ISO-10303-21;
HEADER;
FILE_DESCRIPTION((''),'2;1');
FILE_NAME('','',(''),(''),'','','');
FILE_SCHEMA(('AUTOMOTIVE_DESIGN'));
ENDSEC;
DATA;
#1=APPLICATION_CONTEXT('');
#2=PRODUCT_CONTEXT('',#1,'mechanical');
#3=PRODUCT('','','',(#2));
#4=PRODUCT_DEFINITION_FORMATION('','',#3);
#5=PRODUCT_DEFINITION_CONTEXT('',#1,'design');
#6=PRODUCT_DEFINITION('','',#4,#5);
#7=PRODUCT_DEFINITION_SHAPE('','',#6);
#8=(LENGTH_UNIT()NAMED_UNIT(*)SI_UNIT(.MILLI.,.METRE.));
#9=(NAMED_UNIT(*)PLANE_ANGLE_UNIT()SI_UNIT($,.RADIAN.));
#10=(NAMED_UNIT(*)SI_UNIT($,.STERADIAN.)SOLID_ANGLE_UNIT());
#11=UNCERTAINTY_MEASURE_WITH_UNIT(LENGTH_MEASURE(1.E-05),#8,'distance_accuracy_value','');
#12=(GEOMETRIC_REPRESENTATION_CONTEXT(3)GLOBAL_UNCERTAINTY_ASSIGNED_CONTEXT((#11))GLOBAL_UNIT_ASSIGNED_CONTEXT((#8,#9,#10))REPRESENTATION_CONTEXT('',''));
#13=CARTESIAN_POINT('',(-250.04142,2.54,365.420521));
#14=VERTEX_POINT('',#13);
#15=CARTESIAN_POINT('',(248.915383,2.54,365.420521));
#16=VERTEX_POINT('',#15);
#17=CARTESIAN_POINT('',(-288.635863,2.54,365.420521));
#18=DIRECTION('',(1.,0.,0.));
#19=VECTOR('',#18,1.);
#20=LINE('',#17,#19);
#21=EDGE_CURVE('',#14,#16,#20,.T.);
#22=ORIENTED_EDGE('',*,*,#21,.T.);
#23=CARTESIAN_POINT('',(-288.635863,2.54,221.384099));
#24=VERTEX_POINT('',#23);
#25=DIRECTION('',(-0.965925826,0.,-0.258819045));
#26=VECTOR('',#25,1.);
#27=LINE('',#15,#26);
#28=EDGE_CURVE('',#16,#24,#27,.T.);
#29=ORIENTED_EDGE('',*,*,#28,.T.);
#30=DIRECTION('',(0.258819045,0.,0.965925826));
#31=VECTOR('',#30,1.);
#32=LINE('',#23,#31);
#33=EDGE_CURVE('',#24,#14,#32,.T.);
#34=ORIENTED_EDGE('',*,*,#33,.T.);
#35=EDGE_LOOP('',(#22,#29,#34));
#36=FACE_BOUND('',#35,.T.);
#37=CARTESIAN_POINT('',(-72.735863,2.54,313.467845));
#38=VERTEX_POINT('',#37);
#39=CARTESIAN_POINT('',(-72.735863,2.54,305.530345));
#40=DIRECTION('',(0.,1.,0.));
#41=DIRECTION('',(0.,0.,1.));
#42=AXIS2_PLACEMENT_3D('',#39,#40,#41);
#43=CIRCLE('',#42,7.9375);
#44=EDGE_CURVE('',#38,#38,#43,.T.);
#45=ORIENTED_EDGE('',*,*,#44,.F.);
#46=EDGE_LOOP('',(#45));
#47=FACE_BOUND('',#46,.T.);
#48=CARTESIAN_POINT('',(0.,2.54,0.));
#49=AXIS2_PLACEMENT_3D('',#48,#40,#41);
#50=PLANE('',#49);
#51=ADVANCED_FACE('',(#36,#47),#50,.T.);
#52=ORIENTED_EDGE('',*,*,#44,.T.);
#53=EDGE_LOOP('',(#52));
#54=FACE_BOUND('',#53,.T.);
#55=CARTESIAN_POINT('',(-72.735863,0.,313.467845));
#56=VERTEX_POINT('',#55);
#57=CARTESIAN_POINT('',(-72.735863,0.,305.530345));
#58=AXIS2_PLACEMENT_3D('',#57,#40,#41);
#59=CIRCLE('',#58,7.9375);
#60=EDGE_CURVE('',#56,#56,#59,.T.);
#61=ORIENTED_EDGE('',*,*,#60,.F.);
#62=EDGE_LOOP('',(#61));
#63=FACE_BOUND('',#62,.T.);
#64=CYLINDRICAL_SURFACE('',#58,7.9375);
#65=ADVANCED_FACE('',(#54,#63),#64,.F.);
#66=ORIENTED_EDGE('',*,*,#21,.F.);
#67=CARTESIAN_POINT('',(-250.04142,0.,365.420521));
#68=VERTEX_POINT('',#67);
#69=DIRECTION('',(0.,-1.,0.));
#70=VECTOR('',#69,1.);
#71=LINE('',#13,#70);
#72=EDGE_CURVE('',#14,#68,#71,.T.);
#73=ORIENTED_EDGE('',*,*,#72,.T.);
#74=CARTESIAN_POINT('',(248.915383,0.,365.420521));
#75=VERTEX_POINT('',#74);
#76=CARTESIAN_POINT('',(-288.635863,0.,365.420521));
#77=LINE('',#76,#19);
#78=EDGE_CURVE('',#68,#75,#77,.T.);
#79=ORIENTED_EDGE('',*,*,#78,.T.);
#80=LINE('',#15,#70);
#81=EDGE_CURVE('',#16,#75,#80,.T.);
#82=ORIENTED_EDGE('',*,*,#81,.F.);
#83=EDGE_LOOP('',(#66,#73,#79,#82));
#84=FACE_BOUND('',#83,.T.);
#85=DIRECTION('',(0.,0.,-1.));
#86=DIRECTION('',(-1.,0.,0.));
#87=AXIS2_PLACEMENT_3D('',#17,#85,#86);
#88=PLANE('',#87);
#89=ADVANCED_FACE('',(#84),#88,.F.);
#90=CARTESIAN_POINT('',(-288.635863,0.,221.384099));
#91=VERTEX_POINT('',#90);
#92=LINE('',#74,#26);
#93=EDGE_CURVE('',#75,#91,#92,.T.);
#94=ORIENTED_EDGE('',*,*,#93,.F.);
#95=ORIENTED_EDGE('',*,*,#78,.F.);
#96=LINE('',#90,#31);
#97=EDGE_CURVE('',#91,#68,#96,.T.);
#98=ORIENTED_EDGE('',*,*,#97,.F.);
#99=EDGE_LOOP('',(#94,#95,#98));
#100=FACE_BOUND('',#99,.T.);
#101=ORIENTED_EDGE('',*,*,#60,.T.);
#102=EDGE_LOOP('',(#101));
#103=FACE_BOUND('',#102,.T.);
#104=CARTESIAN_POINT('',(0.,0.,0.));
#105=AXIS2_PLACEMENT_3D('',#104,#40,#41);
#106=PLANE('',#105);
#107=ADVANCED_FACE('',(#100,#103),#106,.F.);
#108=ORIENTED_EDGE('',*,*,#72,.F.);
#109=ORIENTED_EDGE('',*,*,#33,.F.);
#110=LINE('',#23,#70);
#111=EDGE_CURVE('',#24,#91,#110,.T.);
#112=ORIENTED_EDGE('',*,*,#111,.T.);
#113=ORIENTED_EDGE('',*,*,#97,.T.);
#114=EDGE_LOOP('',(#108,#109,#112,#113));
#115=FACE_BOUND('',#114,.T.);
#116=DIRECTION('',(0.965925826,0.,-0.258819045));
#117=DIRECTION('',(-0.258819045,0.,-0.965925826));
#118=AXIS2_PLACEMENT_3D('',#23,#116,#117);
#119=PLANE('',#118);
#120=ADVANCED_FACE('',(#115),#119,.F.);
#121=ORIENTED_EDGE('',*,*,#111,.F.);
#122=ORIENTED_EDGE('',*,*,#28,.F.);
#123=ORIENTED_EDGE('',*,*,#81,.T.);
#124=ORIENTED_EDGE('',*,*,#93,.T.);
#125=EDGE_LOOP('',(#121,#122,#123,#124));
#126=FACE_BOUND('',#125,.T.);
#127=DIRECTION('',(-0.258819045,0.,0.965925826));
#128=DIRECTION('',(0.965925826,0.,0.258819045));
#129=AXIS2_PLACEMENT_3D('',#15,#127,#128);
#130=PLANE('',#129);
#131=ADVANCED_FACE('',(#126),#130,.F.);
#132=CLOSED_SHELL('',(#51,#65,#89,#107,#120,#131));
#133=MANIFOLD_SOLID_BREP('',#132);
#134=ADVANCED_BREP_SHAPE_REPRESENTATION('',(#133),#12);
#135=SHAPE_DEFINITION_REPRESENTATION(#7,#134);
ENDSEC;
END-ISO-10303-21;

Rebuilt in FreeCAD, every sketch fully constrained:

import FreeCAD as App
import Part
import Sketcher
from FreeCAD import Vector
Q = App.Units.Quantity

doc = App.newDocument("Part")
body = doc.addObject("PartDesign::Body", "Body")

# Sketch on XZ plane
sketch1 = body.newObject("Sketcher::SketchObject", "Sketch")
sketch1.AttachmentSupport = (doc.getObject("XZ_Plane"), [""])
sketch1.MapMode = "FlatFace"
sketch1.addGeometry(Part.LineSegment(Vector(-289, 221, 0), Vector(-289, 365, 0)), False)
sketch1.addGeometry(Part.LineSegment(Vector(-289, 365, 0), Vector(249, 365, 0)), False)
sketch1.addGeometry(Part.LineSegment(Vector(249, 365, 0), Vector(-289, 221, 0)), False)
sketch1.addConstraint(Sketcher.Constraint("Coincident", 0, 2, 1, 1))
sketch1.addConstraint(Sketcher.Constraint("Coincident", 1, 2, 2, 1))
sketch1.addConstraint(Sketcher.Constraint("Coincident", 2, 2, 0, 1))
sketch1.addConstraint(Sketcher.Constraint("Vertical", 0))
sketch1.addConstraint(Sketcher.Constraint("Horizontal", 1))
sketch1.addConstraint(Sketcher.Constraint("Angle", 2, Q("-165 deg")))
sketch1.addConstraint(Sketcher.Constraint("Distance", 2, Q("21.91 in")))
sketch1.addConstraint(Sketcher.Constraint("DistanceY", -1, 1, 2, 2, 221.384099))
sketch1.addConstraint(Sketcher.Constraint("DistanceX", 0, 2, -1, 1, 288.635863))
pad1 = body.newObject("PartDesign::Pad", "Pad")
pad1.Profile = sketch1
pad1.Length = Q("0.1 in")
pad1.Reversed = True

# Sketch on XZ plane
sketch2 = body.newObject("Sketcher::SketchObject", "Sketch001")
sketch2.AttachmentSupport = (doc.getObject("XZ_Plane"), [""])
sketch2.MapMode = "FlatFace"
sketch2.AttachmentOffset = App.Placement(Vector(0, 0, -0.1 * 25.4), App.Rotation())
sketch2.addGeometry(Part.Circle(Vector(-73, 306, 0), Vector(0, 0, 1), 8), False)
sketch2.addConstraint(Sketcher.Constraint("Diameter", 0, Q("0.625 in")))
sketch2.addConstraint(Sketcher.Constraint("DistanceX", 0, 3, -1, 1, 72.735863))
sketch2.addConstraint(Sketcher.Constraint("DistanceY", -1, 1, 0, 3, 305.530345))
pocket1 = body.newObject("PartDesign::Pocket", "Pocket")
pocket1.Profile = sketch2
pocket1.Length = Q("0.1 in")
pocket1.Reversed = True

# Sketch on XZ plane
sketch3 = body.newObject("Sketcher::SketchObject", "Sketch002")
sketch3.AttachmentSupport = (doc.getObject("XZ_Plane"), [""])
sketch3.MapMode = "FlatFace"
sketch3.addGeometry(Part.LineSegment(Vector(-289, 221, 0), Vector(-250, 365, 0)), False)
sketch3.addGeometry(Part.LineSegment(Vector(-250, 365, 0), Vector(-289, 365, 0)), False)
sketch3.addGeometry(Part.LineSegment(Vector(-289, 365, 0), Vector(-289, 221, 0)), False)
sketch3.addConstraint(Sketcher.Constraint("Coincident", 0, 2, 1, 1))
sketch3.addConstraint(Sketcher.Constraint("Coincident", 1, 2, 2, 1))
sketch3.addConstraint(Sketcher.Constraint("Coincident", 2, 2, 0, 1))
sketch3.addConstraint(Sketcher.Constraint("Horizontal", 1))
sketch3.addConstraint(Sketcher.Constraint("Vertical", 2))
sketch3.addConstraint(Sketcher.Constraint("Angle", 0, Q("75 deg")))
sketch3.addConstraint(Sketcher.Constraint("DistanceY", -1, 1, 2, 2, 221.384099))
sketch3.addConstraint(Sketcher.Constraint("DistanceX", 1, 2, 1, 1, 38.594443))
sketch3.addConstraint(Sketcher.Constraint("DistanceX", 0, 2, -1, 1, 250.04142))
pocket2 = body.newObject("PartDesign::Pocket", "Pocket001")
pocket2.Profile = sketch3
pocket2.Length = Q("0.1 in")

doc.recompute()
